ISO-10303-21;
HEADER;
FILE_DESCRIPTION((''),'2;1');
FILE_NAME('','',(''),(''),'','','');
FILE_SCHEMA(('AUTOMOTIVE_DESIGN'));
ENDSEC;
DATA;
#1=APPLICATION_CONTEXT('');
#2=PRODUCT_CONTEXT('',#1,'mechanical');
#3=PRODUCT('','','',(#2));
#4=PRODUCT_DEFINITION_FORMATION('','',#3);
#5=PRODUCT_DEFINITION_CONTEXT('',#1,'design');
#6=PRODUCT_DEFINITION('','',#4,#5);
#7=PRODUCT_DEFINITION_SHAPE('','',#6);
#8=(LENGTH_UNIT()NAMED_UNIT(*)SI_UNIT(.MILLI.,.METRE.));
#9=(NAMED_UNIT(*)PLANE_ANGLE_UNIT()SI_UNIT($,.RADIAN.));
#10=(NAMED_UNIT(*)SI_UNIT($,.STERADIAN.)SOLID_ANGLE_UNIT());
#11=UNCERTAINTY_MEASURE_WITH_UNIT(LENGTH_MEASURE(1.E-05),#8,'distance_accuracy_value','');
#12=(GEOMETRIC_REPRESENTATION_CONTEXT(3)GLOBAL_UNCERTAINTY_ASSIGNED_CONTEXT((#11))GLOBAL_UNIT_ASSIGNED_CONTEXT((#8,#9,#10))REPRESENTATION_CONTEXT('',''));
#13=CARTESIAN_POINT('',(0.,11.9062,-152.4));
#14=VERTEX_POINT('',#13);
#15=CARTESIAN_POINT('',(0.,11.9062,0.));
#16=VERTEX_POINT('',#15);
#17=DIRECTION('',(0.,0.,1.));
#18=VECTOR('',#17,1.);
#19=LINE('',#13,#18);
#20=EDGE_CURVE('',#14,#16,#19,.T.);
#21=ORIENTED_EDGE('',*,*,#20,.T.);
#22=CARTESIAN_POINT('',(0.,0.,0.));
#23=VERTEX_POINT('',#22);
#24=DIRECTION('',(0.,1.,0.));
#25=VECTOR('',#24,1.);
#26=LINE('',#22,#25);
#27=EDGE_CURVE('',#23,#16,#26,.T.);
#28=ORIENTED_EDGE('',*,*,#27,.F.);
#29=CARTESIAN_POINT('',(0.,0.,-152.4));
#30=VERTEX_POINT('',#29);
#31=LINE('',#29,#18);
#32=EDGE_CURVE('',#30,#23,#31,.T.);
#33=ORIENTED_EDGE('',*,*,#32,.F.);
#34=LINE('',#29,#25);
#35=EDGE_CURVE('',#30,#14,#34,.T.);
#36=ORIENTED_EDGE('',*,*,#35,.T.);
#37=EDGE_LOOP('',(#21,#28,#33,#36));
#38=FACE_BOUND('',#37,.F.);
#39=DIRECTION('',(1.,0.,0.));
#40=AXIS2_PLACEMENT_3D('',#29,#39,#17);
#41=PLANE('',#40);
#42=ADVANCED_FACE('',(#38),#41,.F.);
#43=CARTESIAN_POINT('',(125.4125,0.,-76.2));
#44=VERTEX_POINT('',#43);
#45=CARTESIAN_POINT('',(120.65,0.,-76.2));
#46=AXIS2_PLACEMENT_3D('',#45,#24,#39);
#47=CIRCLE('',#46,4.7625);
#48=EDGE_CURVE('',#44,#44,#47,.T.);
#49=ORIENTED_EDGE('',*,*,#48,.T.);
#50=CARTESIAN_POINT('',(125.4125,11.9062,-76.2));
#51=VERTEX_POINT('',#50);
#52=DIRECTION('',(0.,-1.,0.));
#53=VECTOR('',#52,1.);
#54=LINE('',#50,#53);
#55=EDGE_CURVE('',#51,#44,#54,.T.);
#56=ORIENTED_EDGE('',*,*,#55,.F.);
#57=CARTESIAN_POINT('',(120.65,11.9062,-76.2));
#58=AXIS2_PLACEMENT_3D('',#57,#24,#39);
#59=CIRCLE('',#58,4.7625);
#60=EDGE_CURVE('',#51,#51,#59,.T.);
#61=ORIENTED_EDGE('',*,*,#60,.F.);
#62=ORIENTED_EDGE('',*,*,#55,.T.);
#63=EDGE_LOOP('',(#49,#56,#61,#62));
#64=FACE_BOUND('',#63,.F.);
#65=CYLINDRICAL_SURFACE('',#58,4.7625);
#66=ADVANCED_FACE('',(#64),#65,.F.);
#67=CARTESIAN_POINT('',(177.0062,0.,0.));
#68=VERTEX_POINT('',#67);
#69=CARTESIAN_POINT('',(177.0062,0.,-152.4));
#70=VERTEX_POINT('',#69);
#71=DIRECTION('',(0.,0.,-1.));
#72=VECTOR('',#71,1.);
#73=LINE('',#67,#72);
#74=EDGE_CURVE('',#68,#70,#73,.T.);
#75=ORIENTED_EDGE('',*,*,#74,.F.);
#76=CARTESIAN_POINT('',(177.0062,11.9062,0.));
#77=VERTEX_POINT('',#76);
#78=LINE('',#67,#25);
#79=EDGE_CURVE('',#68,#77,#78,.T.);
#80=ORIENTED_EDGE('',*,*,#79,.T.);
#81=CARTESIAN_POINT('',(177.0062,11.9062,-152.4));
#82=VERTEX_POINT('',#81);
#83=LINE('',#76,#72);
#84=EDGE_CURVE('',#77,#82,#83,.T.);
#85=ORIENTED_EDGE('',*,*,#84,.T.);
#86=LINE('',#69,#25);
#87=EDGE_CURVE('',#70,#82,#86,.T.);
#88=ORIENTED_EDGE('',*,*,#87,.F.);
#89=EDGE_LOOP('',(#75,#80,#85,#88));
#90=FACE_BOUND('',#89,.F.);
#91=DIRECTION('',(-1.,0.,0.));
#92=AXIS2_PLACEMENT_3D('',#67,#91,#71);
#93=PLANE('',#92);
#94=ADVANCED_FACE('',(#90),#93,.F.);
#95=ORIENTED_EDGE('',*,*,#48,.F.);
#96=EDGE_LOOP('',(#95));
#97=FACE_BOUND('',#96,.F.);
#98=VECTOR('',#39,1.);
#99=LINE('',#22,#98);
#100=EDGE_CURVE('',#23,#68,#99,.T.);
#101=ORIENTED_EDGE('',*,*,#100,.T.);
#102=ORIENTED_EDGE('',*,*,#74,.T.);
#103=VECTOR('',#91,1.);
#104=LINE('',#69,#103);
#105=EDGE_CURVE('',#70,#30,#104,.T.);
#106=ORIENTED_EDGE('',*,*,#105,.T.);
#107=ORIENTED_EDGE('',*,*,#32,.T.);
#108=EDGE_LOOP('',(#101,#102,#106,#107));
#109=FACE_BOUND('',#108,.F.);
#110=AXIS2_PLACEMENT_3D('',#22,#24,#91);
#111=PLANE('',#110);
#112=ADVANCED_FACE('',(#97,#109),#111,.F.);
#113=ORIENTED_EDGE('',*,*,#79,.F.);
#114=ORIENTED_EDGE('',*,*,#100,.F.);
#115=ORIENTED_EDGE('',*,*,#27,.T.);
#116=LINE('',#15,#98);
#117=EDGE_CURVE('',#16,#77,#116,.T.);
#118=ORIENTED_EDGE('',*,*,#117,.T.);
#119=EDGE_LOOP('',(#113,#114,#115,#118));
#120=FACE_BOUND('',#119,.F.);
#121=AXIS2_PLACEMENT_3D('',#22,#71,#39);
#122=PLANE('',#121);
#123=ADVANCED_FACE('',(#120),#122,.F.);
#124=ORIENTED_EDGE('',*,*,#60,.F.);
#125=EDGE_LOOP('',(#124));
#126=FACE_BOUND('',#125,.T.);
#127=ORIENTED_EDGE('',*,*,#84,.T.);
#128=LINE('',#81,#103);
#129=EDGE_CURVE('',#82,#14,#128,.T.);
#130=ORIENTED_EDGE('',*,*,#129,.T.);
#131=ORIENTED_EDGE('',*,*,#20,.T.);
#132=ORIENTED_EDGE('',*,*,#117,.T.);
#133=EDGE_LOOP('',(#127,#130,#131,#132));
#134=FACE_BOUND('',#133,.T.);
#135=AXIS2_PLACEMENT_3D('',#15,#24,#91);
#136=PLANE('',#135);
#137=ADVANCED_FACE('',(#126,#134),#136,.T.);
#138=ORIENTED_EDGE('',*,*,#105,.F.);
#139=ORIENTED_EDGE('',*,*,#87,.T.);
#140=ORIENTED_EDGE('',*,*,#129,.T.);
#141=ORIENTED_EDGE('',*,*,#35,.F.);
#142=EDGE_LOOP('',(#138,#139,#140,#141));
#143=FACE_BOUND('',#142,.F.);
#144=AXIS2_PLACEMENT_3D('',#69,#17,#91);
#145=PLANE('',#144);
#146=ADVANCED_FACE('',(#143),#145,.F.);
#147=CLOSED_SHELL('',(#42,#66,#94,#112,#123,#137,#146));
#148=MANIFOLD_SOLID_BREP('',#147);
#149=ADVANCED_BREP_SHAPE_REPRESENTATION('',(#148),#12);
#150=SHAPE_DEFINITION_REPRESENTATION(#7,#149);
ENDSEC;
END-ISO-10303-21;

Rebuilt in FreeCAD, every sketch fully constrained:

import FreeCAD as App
import Part
import Sketcher
Q = App.Units.Quantity


def add_polygon(sketch, points):
    """Adds a closed chain of lines whose ends are joined by coincident constraints."""
    first, n = sketch.GeometryCount, len(points)
    for a, b in zip(points, points[1:] + points[:1]):
        sketch.addGeometry(Part.LineSegment(App.Vector(*a, 0), App.Vector(*b, 0)), False)
    for i in range(n):
        sketch.addConstraint(Sketcher.Constraint("Coincident", first + i, 2, first + (i + 1) % n, 1))

doc = App.newDocument("Part")
params = doc.addObject("Spreadsheet::Sheet", "Params")
for row, (alias, value) in enumerate([
    ("sketch1_height", "6 in"),
    ("sketch1_width", "6.968748 in"),
    ("pad1_length", "0.468748 in"),
    ("sketch2_diameter", "0.375 in"),
    ("pocket1_length", "0.468748 in"),
], start=1):
    params.set(f"A{row}", alias)
    params.set(f"B{row}", "=" + value)
    params.setAlias(f"B{row}", alias)

body = doc.addObject("PartDesign::Body", "Body")

# Sketch on XZ plane
sketch1 = doc.addObject("Sketcher::SketchObject", "Sketch")
body.addObject(sketch1)
sketch1.AttachmentSupport = (doc.XZ_Plane, [""])
sketch1.MapMode = "FlatFace"
add_polygon(sketch1, [(0, -152.4), (0, 0), (177.0062, 0), (177.0062, -152.4)])  # lines 0-3
sketch1.addConstraint([
    Sketcher.Constraint("Vertical", 0),
    Sketcher.Constraint("Horizontal", 1),
    Sketcher.Constraint("Vertical", 2),
    Sketcher.Constraint("Horizontal", 3),
    Sketcher.Constraint("Coincident", 0, 2, -1, 1),
    Sketcher.Constraint("DistanceY", 0, 1, 0, 2, Q("6 in")),
    Sketcher.Constraint("DistanceX", 1, 1, 1, 2, Q("6.968748 in")),
])
sketch1.setExpression("Constraints[9]", "Params.sketch1_height")
sketch1.setExpression("Constraints[10]", "Params.sketch1_width")
pad1 = doc.addObject("PartDesign::Pad", "Pad")
body.addObject(pad1)
pad1.Profile = sketch1
pad1.setExpression("Length", "Params.pad1_length")
pad1.Reversed = True

# Sketch on XZ plane
sketch2 = doc.addObject("Sketcher::SketchObject", "Sketch001")
body.addObject(sketch2)
sketch2.AttachmentSupport = (doc.XZ_Plane, [""])
sketch2.MapMode = "FlatFace"
sketch2.AttachmentOffset = App.Placement(App.Vector(0, 0, -0.468748 * 25.4), App.Rotation())
sketch2.addGeometry(Part.Circle(App.Vector(120.65, -76.2, 0), App.Vector(0, 0, 1), 4.7625), False)
sketch2.addConstraint([
    Sketcher.Constraint("Diameter", 0, Q("0.375 in")),
    Sketcher.Constraint("DistanceY", 0, 3, -1, 1, Q("3 in")),
    Sketcher.Constraint("DistanceX", -1, 1, 0, 3, Q("4.75 in")),
])
sketch2.setExpression("Constraints[0]", "Params.sketch2_diameter")
pocket1 = doc.addObject("PartDesign::Pocket", "Pocket")
body.addObject(pocket1)
pocket1.Profile = sketch2
pocket1.setExpression("Length", "Params.pocket1_length")
pocket1.Reversed = True

doc.recompute()
